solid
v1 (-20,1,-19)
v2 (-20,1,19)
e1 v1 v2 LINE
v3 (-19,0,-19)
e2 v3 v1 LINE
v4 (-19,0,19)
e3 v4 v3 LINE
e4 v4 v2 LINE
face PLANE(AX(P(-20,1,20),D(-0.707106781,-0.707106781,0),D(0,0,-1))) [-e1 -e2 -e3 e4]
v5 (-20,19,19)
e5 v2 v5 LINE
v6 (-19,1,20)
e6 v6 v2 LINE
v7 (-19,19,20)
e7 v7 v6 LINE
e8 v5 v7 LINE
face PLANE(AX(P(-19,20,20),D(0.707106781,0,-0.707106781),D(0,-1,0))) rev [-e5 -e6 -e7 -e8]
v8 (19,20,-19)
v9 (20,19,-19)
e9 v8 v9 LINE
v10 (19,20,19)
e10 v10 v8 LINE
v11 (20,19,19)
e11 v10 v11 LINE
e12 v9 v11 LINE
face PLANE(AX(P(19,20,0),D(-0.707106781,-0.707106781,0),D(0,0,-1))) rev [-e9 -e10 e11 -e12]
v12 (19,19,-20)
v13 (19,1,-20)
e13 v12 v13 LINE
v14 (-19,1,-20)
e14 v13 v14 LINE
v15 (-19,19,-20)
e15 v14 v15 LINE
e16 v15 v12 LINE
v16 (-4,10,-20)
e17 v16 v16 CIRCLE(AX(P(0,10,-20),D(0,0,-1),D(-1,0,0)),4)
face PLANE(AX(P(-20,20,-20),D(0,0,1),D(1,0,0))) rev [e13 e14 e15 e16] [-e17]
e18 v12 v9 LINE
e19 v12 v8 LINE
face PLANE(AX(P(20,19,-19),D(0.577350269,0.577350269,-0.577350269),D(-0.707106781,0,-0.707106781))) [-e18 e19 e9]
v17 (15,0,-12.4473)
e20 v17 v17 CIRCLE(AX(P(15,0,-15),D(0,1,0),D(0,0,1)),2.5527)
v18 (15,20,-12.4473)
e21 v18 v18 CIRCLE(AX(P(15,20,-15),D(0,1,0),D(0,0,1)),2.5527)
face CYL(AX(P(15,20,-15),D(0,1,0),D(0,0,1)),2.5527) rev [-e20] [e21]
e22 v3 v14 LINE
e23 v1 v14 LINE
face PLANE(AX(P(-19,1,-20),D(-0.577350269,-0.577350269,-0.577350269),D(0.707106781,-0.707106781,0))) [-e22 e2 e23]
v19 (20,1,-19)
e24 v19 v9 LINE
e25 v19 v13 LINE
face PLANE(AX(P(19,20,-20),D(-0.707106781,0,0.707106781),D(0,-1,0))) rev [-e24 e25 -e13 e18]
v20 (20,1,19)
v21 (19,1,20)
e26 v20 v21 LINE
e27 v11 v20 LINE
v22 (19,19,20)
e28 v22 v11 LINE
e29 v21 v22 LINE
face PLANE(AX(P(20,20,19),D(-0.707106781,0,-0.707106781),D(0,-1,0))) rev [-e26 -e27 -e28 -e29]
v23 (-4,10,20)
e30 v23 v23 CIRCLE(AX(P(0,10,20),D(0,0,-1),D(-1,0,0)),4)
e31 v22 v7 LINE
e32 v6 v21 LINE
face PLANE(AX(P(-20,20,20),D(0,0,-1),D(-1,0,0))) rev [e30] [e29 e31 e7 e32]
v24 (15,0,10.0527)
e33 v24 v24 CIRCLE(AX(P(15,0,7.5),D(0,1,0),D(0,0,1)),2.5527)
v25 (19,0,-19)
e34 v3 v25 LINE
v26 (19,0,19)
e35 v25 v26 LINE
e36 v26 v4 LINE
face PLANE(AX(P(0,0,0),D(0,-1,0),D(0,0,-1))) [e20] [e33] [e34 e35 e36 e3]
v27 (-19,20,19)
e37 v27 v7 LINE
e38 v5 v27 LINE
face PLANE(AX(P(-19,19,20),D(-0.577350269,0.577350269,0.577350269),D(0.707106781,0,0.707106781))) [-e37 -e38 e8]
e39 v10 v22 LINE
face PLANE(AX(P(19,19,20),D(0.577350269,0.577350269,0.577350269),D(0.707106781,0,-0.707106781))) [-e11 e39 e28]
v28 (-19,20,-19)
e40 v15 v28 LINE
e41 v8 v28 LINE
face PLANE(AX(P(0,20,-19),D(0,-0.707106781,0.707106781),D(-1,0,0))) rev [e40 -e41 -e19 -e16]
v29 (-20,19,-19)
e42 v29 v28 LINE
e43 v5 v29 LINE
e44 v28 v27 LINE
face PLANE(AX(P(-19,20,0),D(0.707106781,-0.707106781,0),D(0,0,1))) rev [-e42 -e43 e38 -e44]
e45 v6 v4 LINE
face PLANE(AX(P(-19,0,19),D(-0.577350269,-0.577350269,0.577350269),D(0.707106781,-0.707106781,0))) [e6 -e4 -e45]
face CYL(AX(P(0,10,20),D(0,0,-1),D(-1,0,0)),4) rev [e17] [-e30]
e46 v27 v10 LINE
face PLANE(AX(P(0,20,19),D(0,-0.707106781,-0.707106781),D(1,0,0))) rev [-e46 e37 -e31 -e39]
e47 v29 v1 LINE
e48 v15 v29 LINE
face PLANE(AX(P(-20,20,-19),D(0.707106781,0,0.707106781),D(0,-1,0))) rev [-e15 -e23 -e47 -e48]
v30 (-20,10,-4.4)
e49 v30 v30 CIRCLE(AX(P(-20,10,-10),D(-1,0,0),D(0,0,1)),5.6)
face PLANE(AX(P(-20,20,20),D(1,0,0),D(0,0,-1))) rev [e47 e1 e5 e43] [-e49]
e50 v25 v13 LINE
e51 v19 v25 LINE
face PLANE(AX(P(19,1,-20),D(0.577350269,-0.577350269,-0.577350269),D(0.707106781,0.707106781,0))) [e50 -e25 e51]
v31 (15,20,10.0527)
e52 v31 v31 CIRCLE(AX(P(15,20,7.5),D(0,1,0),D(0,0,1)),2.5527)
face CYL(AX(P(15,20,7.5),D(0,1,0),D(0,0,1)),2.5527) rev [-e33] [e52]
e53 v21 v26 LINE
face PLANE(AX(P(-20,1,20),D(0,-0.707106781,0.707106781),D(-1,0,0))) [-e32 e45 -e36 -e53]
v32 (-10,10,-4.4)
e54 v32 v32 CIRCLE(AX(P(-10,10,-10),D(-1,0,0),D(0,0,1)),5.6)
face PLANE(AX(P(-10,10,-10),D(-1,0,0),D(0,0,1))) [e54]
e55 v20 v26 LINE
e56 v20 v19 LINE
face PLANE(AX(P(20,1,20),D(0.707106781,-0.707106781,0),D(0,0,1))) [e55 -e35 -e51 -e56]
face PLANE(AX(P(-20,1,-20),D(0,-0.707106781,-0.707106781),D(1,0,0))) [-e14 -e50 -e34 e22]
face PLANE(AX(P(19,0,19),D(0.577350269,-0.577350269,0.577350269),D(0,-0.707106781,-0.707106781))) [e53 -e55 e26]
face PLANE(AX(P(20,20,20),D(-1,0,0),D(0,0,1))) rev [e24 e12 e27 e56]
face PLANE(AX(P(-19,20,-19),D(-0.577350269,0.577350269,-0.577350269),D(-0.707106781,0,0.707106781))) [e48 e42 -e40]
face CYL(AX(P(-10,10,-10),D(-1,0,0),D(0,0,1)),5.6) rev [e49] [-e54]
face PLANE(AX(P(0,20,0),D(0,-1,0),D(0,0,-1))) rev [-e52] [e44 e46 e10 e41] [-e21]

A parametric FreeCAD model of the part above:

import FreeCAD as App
import Part
import Sketcher
Q = App.Units.Quantity


def edges_at(feature, points):
    """Names of the edges that pass closest to the given points."""
    edges = feature.Shape.Edges
    near = lambda p: min(range(len(edges)), key=lambda i: edges[i].distToShape(Part.Vertex(*p))[0])
    return sorted({f"Edge{near(p) + 1}" for p in points})


def add_polygon(sketch, points):
    """Adds a closed chain of lines whose ends are joined by coincident constraints."""
    first, n = sketch.GeometryCount, len(points)
    for a, b in zip(points, points[1:] + points[:1]):
        sketch.addGeometry(Part.LineSegment(App.Vector(*a, 0), App.Vector(*b, 0)), False)
    for i in range(n):
        sketch.addConstraint(Sketcher.Constraint("Coincident", first + i, 2, first + (i + 1) % n, 1))

doc = App.newDocument("Part")
body = doc.addObject("PartDesign::Body", "Body")

# Sketch on XZ plane
sketch1 = body.newObject("Sketcher::SketchObject", "Sketch")
sketch1.AttachmentSupport = (doc.getObject("XZ_Plane"), [""])
sketch1.MapMode = "FlatFace"
add_polygon(sketch1, [(-20, -20), (-20, 20), (20, 20), (20, -20)])  # lines 0-3
sketch1.addConstraint(Sketcher.Constraint("Vertical", 0))
sketch1.addConstraint(Sketcher.Constraint("Horizontal", 1))
sketch1.addConstraint(Sketcher.Constraint("Vertical", 2))
sketch1.addConstraint(Sketcher.Constraint("Horizontal", 3))
sketch1.addConstraint(Sketcher.Constraint("Symmetric", 0, 2, 2, 2, -1, 1))
sketch1.addConstraint(Sketcher.Constraint("Equal", 3, 0))
sketch1.addConstraint(Sketcher.Constraint("DistanceX", 1, 1, 1, 2, Q("40 mm")))
pad1 = body.newObject("PartDesign::Pad", "Pad")
pad1.Profile = sketch1
pad1.Length = 20
pad1.Reversed = True

# Sketch on YZ plane
sketch2 = body.newObject("Sketcher::SketchObject", "Sketch001")
sketch2.AttachmentSupport = (doc.getObject("YZ_Plane"), [""])
sketch2.MapMode = "FlatFace"
sketch2.AttachmentOffset = App.Placement(App.Vector(0, 0, -20), App.Rotation())
sketch2.addGeometry(Part.Circle(App.Vector(10, -10, 0), App.Vector(0, 0, 1), 5.6), False)
sketch2.addConstraint(Sketcher.Constraint("Diameter", 0, Q("11.2 mm")))
sketch2.addConstraint(Sketcher.Constraint("DistanceX", -1, 1, 0, 3, Q("10 mm")))
sketch2.addConstraint(Sketcher.Constraint("DistanceY", 0, 3, -1, 1, Q("10 mm")))
pocket1 = body.newObject("PartDesign::Pocket", "Pocket")
pocket1.Profile = sketch2
pocket1.Length = 10
pocket1.Reversed = True
doc.recompute()

chamfer = body.newObject("PartDesign::Chamfer", "Chamfer")
chamfer.Base = (pocket1, edges_at(pocket1, [
    (-20, 20, 0),
    (0, 20, 20),
    (20, 20, 0),
    (0, 0, 20),
    (-20, 0, 0),
    (0, 0, -20),
    (20, 0, 0),
    (0, 20, -20),
    (20, 10, 20),
    (-20, 10, 20),
    (-20, 10, -20),
    (20, 10, -20),
]))
chamfer.Size = 1

# Sketch on XZ plane
sketch3 = body.newObject("Sketcher::SketchObject", "Sketch002")
sketch3.AttachmentSupport = (doc.getObject("XZ_Plane"), [""])
sketch3.MapMode = "FlatFace"
sketch3.AttachmentOffset = App.Placement(App.Vector(0, 0, -20), App.Rotation())
sketch3.addGeometry(Part.Circle(App.Vector(15, 7.5, 0), App.Vector(0, 0, 1), 2.5527), False)
sketch3.addGeometry(Part.Circle(App.Vector(15, -15, 0), App.Vector(0, 0, 1), 2.5527), False)
sketch3.addConstraint(Sketcher.Constraint("Equal", 0, 1))
sketch3.addConstraint(Sketcher.Constraint("Vertical", 0, 3, 1, 3))
sketch3.addConstraint(Sketcher.Constraint("DistanceX", -1, 1, 0, 3, Q("15 mm")))
sketch3.addConstraint(Sketcher.Constraint("DistanceY", 1, 3, -1, 1, Q("15 mm")))
sketch3.addConstraint(Sketcher.Constraint("Diameter", 0, Q("5.1054 mm")))
sketch3.addConstraint(Sketcher.Constraint("DistanceY", -1, 1, 0, 3, Q("7.5 mm")))
doc.recompute()
hole = body.newObject("PartDesign::Hole", "Hole")
hole.Profile = sketch3
hole.ThreadType = "None"
hole.Diameter = 5.1054
hole.DepthType = "ThroughAll"
hole.Reversed = True

# Sketch on XY plane
sketch4 = body.newObject("Sketcher::SketchObject", "Sketch003")
sketch4.AttachmentSupport = (doc.getObject("XY_Plane"), [""])
sketch4.MapMode = "FlatFace"
sketch4.AttachmentOffset = App.Placement(App.Vector(0, 0, -20), App.Rotation())
sketch4.addGeometry(Part.Circle(App.Vector(0, 10, 0), App.Vector(0, 0, 1), 4), False)
sketch4.addConstraint(Sketcher.Constraint("PointOnObject", 0, 3, -2))
sketch4.addConstraint(Sketcher.Constraint("Diameter", 0, Q("8 mm")))
sketch4.addConstraint(Sketcher.Constraint("DistanceY", -1, 1, 0, 3, Q("10 mm")))
pocket2 = body.newObject("PartDesign::Pocket", "Pocket001")
pocket2.Profile = sketch4
pocket2.Type = "ThroughAll"
pocket2.Reversed = True

doc.recompute()
